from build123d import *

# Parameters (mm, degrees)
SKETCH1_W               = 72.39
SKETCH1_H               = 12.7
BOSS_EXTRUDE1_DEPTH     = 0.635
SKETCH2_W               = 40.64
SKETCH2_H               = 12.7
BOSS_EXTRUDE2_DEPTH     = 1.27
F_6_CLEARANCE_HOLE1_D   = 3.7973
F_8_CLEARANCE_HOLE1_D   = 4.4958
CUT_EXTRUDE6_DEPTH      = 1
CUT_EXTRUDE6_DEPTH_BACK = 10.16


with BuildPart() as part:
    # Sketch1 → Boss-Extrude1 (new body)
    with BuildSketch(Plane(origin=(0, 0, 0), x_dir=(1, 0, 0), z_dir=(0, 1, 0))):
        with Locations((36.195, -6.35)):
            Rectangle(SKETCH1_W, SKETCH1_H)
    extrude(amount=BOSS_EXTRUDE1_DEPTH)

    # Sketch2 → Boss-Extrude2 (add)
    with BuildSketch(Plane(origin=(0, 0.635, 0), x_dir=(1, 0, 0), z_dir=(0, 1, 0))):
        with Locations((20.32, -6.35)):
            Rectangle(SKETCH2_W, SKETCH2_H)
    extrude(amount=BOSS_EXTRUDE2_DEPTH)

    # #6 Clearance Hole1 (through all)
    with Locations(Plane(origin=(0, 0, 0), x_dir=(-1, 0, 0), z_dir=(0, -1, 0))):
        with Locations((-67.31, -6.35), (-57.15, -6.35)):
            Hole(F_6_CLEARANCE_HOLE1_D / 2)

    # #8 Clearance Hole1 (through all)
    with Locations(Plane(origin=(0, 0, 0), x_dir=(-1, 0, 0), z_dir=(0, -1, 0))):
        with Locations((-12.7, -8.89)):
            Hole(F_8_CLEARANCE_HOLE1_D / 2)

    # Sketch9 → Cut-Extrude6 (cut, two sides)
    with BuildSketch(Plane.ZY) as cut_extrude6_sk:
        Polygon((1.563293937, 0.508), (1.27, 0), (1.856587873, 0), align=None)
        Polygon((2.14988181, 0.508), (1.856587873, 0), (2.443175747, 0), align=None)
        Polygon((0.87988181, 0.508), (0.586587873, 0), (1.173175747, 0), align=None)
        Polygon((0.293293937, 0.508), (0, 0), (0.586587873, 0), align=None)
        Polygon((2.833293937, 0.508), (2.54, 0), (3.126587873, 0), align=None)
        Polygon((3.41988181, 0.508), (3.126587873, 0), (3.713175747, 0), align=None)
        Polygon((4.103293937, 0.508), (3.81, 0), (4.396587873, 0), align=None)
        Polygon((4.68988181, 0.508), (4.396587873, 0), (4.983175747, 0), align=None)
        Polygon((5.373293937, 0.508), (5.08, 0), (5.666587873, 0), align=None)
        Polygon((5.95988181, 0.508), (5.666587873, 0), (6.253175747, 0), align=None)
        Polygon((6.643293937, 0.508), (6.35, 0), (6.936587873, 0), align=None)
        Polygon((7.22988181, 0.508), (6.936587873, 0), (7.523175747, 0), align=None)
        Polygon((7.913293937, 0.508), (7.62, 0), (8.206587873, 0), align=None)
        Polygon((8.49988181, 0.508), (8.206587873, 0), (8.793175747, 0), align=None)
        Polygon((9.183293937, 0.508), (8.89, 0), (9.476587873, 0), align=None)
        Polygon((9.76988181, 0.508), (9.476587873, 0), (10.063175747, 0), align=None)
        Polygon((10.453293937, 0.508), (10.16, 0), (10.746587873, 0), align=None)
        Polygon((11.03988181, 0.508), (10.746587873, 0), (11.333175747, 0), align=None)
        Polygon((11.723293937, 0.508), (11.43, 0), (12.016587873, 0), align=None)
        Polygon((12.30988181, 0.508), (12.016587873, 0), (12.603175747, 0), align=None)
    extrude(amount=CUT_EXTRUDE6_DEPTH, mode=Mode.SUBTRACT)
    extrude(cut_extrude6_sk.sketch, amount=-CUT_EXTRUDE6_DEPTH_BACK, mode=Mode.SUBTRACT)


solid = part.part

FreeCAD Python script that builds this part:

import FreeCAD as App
import Part
import Sketcher
from FreeCAD import Vector
Q = App.Units.Quantity


def add_polygon(sketch, points):
    """Adds a closed chain of lines whose ends are joined by coincident constraints."""
    first, n = sketch.GeometryCount, len(points)
    for a, b in zip(points, points[1:] + points[:1]):
        sketch.addGeometry(Part.LineSegment(App.Vector(*a, 0), App.Vector(*b, 0)), False)
    for i in range(n):
        sketch.addConstraint(Sketcher.Constraint("Coincident", first + i, 2, first + (i + 1) % n, 1))

doc = App.newDocument("Part")
body = doc.addObject("PartDesign::Body", "Body")

# Sketch on XZ plane
sketch1 = body.newObject("Sketcher::SketchObject", "Sketch")
sketch1.AttachmentSupport = (doc.getObject("XZ_Plane"), [""])
sketch1.MapMode = "FlatFace"
add_polygon(sketch1, [(0, 0), (0, 12.7), (72.39, 12.7), (72.39, 0)])  # lines 0-3
sketch1.addConstraint(Sketcher.Constraint("Vertical", 0))
sketch1.addConstraint(Sketcher.Constraint("Horizontal", 1))
sketch1.addConstraint(Sketcher.Constraint("Vertical", 2))
sketch1.addConstraint(Sketcher.Constraint("Horizontal", 3))
sketch1.addConstraint(Sketcher.Constraint("Coincident", 3, 2, -1, 1))
sketch1.addConstraint(Sketcher.Constraint("DistanceY", 0, 1, 0, 2, Q("0.5 in")))
sketch1.addConstraint(Sketcher.Constraint("DistanceX", 1, 1, 1, 2, Q("2.85 in")))
pad1 = body.newObject("PartDesign::Pad", "Pad")
pad1.Profile = sketch1
pad1.Length = Q("0.025 in")
pad1.Reversed = True

# Sketch on XZ plane
sketch2 = body.newObject("Sketcher::SketchObject", "Sketch001")
sketch2.AttachmentSupport = (doc.getObject("XZ_Plane"), [""])
sketch2.MapMode = "FlatFace"
sketch2.AttachmentOffset = App.Placement(Vector(0, 0, -0.025 * 25.4), App.Rotation())
add_polygon(sketch2, [(0, 0), (0, 12.7), (40.64, 12.7), (40.64, 0)])  # lines 0-3
sketch2.addConstraint(Sketcher.Constraint("Vertical", 0))
sketch2.addConstraint(Sketcher.Constraint("Horizontal", 1))
sketch2.addConstraint(Sketcher.Constraint("Vertical", 2))
sketch2.addConstraint(Sketcher.Constraint("Horizontal", 3))
sketch2.addConstraint(Sketcher.Constraint("Coincident", 3, 2, -1, 1))
sketch2.addConstraint(Sketcher.Constraint("DistanceX", 1, 1, 1, 2, Q("1.6 in")))
sketch2.addConstraint(Sketcher.Constraint("DistanceY", 0, 1, 0, 2, Q("0.5 in")))
pad2 = body.newObject("PartDesign::Pad", "Pad001")
pad2.Profile = sketch2
pad2.Length = Q("0.05 in")
pad2.Reversed = True

# Sketch on XZ plane
sketch3 = body.newObject("Sketcher::SketchObject", "Sketch002")
sketch3.AttachmentSupport = (doc.getObject("XZ_Plane"), [""])
sketch3.MapMode = "FlatFace"
sketch3.addGeometry(Part.Circle(Vector(67.31, 6.35, 0), Vector(0, 0, 1), 1.89865), False)
sketch3.addGeometry(Part.Circle(Vector(57.15, 6.35, 0), Vector(0, 0, 1), 1.89865), False)
sketch3.addConstraint(Sketcher.Constraint("Equal", 0, 1))
sketch3.addConstraint(Sketcher.Constraint("Horizontal", 0, 3, 1, 3))
sketch3.addConstraint(Sketcher.Constraint("Diameter", 0, Q("0.1495 in")))
sketch3.addConstraint(Sketcher.Constraint("DistanceX", 1, 3, 0, 3, Q("0.4 in")))
sketch3.addConstraint(Sketcher.Constraint("DistanceX", -1, 1, 0, 3, Q("2.65 in")))
sketch3.addConstraint(Sketcher.Constraint("DistanceY", -1, 1, 0, 3, Q("0.25 in")))
doc.recompute()
hole = body.newObject("PartDesign::Hole", "Hole")
hole.Profile = sketch3
hole.ThreadType = "None"
hole.Diameter = Q("0.1495 in")
hole.DepthType = "ThroughAll"

# Sketch on XZ plane
sketch4 = body.newObject("Sketcher::SketchObject", "Sketch003")
sketch4.AttachmentSupport = (doc.getObject("XZ_Plane"), [""])
sketch4.MapMode = "FlatFace"
sketch4.addGeometry(Part.Circle(Vector(12.7, 8.89, 0), Vector(0, 0, 1), 2.2479), False)
sketch4.addConstraint(Sketcher.Constraint("Diameter", 0, Q("0.177 in")))
sketch4.addConstraint(Sketcher.Constraint("DistanceX", -1, 1, 0, 3, Q("0.5 in")))
sketch4.addConstraint(Sketcher.Constraint("DistanceY", -1, 1, 0, 3, Q("0.35 in")))
doc.recompute()
hole2 = body.newObject("PartDesign::Hole", "Hole001")
hole2.Profile = sketch4
hole2.ThreadType = "None"
hole2.Diameter = Q("0.177 in")
hole2.DepthType = "ThroughAll"

# Sketch on YZ plane
sketch5 = body.newObject("Sketcher::SketchObject", "Sketch004")
sketch5.AttachmentSupport = (doc.getObject("YZ_Plane"), [""])
sketch5.MapMode = "FlatFace"
add_polygon(sketch5, [(0.508, 1.563294), (0, 1.27), (0, 1.856588)])  # lines 0-2
add_polygon(sketch5, [(0.508, 2.149882), (0, 1.856588), (0, 2.443176)])  # lines 3-5
add_polygon(sketch5, [(0.508, 0.879882), (0, 0.586588), (0, 1.173176)])  # lines 6-8
add_polygon(sketch5, [(0.508, 0.293294), (0, 0), (0, 0.586588)])  # lines 9-11
add_polygon(sketch5, [(0.508, 2.833294), (0, 2.54), (0, 3.126588)])  # lines 12-14
add_polygon(sketch5, [(0.508, 3.419882), (0, 3.126588), (0, 3.713176)])  # lines 15-17
add_polygon(sketch5, [(0.508, 4.103294), (0, 3.81), (0, 4.396588)])  # lines 18-20
add_polygon(sketch5, [(0.508, 4.689882), (0, 4.396588), (0, 4.983176)])  # lines 21-23
add_polygon(sketch5, [(0.508, 5.373294), (0, 5.08), (0, 5.666588)])  # lines 24-26
add_polygon(sketch5, [(0.508, 5.959882), (0, 5.666588), (0, 6.253176)])  # lines 27-29
add_polygon(sketch5, [(0.508, 6.643294), (0, 6.35), (0, 6.936588)])  # lines 30-32
add_polygon(sketch5, [(0.508, 7.229882), (0, 6.936588), (0, 7.523176)])  # lines 33-35
add_polygon(sketch5, [(0.508, 7.913294), (0, 7.62), (0, 8.206588)])  # lines 36-38
add_polygon(sketch5, [(0.508, 8.499882), (0, 8.206588), (0, 8.793176)])  # lines 39-41
add_polygon(sketch5, [(0.508, 9.183294), (0, 8.89), (0, 9.476588)])  # lines 42-44
add_polygon(sketch5, [(0.508, 9.769882), (0, 9.476588), (0, 10.063176)])  # lines 45-47
add_polygon(sketch5, [(0.508, 10.453294), (0, 10.16), (0, 10.746588)])  # lines 48-50
add_polygon(sketch5, [(0.508, 11.039882), (0, 10.746588), (0, 11.333176)])  # lines 51-53
add_polygon(sketch5, [(0.508, 11.723294), (0, 11.43), (0, 12.016588)])  # lines 54-56
add_polygon(sketch5, [(0.508, 12.309882), (0, 12.016588), (0, 12.603176)])  # lines 57-59
sketch5.addConstraint(Sketcher.Constraint("Vertical", 1))
sketch5.addConstraint(Sketcher.Constraint("Vertical", 4))
sketch5.addConstraint(Sketcher.Constraint("Vertical", 7))
sketch5.addConstraint(Sketcher.Constraint("Vertical", 10))
sketch5.addConstraint(Sketcher.Constraint("Vertical", 13))
sketch5.addConstraint(Sketcher.Constraint("Vertical", 16))
sketch5.addConstraint(Sketcher.Constraint("Vertical", 19))
sketch5.addConstraint(Sketcher.Constraint("Vertical", 22))
sketch5.addConstraint(Sketcher.Constraint("Vertical", 25))
sketch5.addConstraint(Sketcher.Constraint("Vertical", 28))
sketch5.addConstraint(Sketcher.Constraint("Vertical", 31))
sketch5.addConstraint(Sketcher.Constraint("Vertical", 34))
sketch5.addConstraint(Sketcher.Constraint("Vertical", 37))
sketch5.addConstraint(Sketcher.Constraint("Vertical", 40))
sketch5.addConstraint(Sketcher.Constraint("Vertical", 43))
sketch5.addConstraint(Sketcher.Constraint("Vertical", 46))
sketch5.addConstraint(Sketcher.Constraint("Vertical", 49))
sketch5.addConstraint(Sketcher.Constraint("Vertical", 52))
sketch5.addConstraint(Sketcher.Constraint("Vertical", 55))
sketch5.addConstraint(Sketcher.Constraint("Vertical", 58))
sketch5.addConstraint(Sketcher.Constraint("Coincident", 9, 2, -1, 1))
sketch5.addConstraint(Sketcher.Constraint("Coincident", 3, 2, 1, 2))
sketch5.addConstraint(Sketcher.Constraint("Coincident", 10, 2, 6, 2))
sketch5.addConstraint(Sketcher.Constraint("Coincident", 15, 2, 13, 2))
sketch5.addConstraint(Sketcher.Constraint("Coincident", 21, 2, 19, 2))
sketch5.addConstraint(Sketcher.Constraint("Coincident", 27, 2, 25, 2))
sketch5.addConstraint(Sketcher.Constraint("Coincident", 33, 2, 31, 2))
sketch5.addConstraint(Sketcher.Constraint("Coincident", 39, 2, 37, 2))
sketch5.addConstraint(Sketcher.Constraint("Coincident", 45, 2, 43, 2))
sketch5.addConstraint(Sketcher.Constraint("Coincident", 51, 2, 49, 2))
sketch5.addConstraint(Sketcher.Constraint("Coincident", 57, 2, 55, 2))
sketch5.addConstraint(Sketcher.Constraint("PointOnObject", 0, 2, -2))
sketch5.addConstraint(Sketcher.Constraint("PointOnObject", 12, 2, -2))
sketch5.addConstraint(Sketcher.Constraint("PointOnObject", 18, 2, -2))
sketch5.addConstraint(Sketcher.Constraint("PointOnObject", 24, 2, -2))
sketch5.addConstraint(Sketcher.Constraint("PointOnObject", 30, 2, -2))
sketch5.addConstraint(Sketcher.Constraint("PointOnObject", 36, 2, -2))
sketch5.addConstraint(Sketcher.Constraint("PointOnObject", 42, 2, -2))
sketch5.addConstraint(Sketcher.Constraint("PointOnObject", 48, 2, -2))
sketch5.addConstraint(Sketcher.Constraint("PointOnObject", 54, 2, -2))
sketch5.addConstraint(Sketcher.Constraint("Parallel", 0, 3))
sketch5.addConstraint(Sketcher.Constraint("Parallel", 2, 5))
sketch5.addConstraint(Sketcher.Constraint("Parallel", 3, 6))
sketch5.addConstraint(Sketcher.Constraint("Parallel", 5, 8))
sketch5.addConstraint(Sketcher.Constraint("Parallel", 6, 9))
sketch5.addConstraint(Sketcher.Constraint("Parallel", 8, 11))
sketch5.addConstraint(Sketcher.Constraint("Parallel", 9, 12))
sketch5.addConstraint(Sketcher.Constraint("Parallel", 11, 14))
sketch5.addConstraint(Sketcher.Constraint("Parallel", 12, 15))
sketch5.addConstraint(Sketcher.Constraint("Parallel", 14, 17))
sketch5.addConstraint(Sketcher.Constraint("Parallel", 15, 18))
sketch5.addConstraint(Sketcher.Constraint("Parallel", 17, 20))
sketch5.addConstraint(Sketcher.Constraint("Parallel", 18, 21))
sketch5.addConstraint(Sketcher.Constraint("Parallel", 20, 23))
sketch5.addConstraint(Sketcher.Constraint("Parallel", 21, 24))
sketch5.addConstraint(Sketcher.Constraint("Parallel", 23, 26))
sketch5.addConstraint(Sketcher.Constraint("Parallel", 24, 27))
sketch5.addConstraint(Sketcher.Constraint("Parallel", 26, 29))
sketch5.addConstraint(Sketcher.Constraint("Parallel", 27, 30))
sketch5.addConstraint(Sketcher.Constraint("Parallel", 29, 32))
sketch5.addConstraint(Sketcher.Constraint("Parallel", 30, 33))
sketch5.addConstraint(Sketcher.Constraint("Parallel", 32, 35))
sketch5.addConstraint(Sketcher.Constraint("Parallel", 33, 36))
sketch5.addConstraint(Sketcher.Constraint("Parallel", 35, 38))
sketch5.addConstraint(Sketcher.Constraint("Parallel", 36, 39))
sketch5.addConstraint(Sketcher.Constraint("Parallel", 38, 41))
sketch5.addConstraint(Sketcher.Constraint("Parallel", 39, 42))
sketch5.addConstraint(Sketcher.Constraint("Parallel", 41, 44))
sketch5.addConstraint(Sketcher.Constraint("Parallel", 42, 45))
sketch5.addConstraint(Sketcher.Constraint("Parallel", 44, 47))
sketch5.addConstraint(Sketcher.Constraint("Parallel", 45, 48))
sketch5.addConstraint(Sketcher.Constraint("Parallel", 47, 50))
sketch5.addConstraint(Sketcher.Constraint("Parallel", 48, 51))
sketch5.addConstraint(Sketcher.Constraint("Parallel", 50, 53))
sketch5.addConstraint(Sketcher.Constraint("Parallel", 51, 54))
sketch5.addConstraint(Sketcher.Constraint("Parallel", 53, 56))
sketch5.addConstraint(Sketcher.Constraint("Parallel", 54, 57))
sketch5.addConstraint(Sketcher.Constraint("Parallel", 56, 59))
sketch5.addConstraint(Sketcher.Constraint("Vertical", 2, 2, 5, 2))
sketch5.addConstraint(Sketcher.Constraint("Vertical", 5, 2, 8, 2))
sketch5.addConstraint(Sketcher.Constraint("Vertical", 8, 2, 11, 2))
sketch5.addConstraint(Sketcher.Constraint("Vertical", 11, 2, 14, 2))
sketch5.addConstraint(Sketcher.Constraint("Vertical", 14, 2, 17, 2))
sketch5.addConstraint(Sketcher.Constraint("Vertical", 17, 2, 20, 2))
sketch5.addConstraint(Sketcher.Constraint("Vertical", 20, 2, 23, 2))
sketch5.addConstraint(Sketcher.Constraint("Vertical", 23, 2, 26, 2))
sketch5.addConstraint(Sketcher.Constraint("Vertical", 26, 2, 29, 2))
sketch5.addConstraint(Sketcher.Constraint("Vertical", 29, 2, 32, 2))
sketch5.addConstraint(Sketcher.Constraint("Vertical", 32, 2, 35, 2))
sketch5.addConstraint(Sketcher.Constraint("Vertical", 35, 2, 38, 2))
sketch5.addConstraint(Sketcher.Constraint("Vertical", 38, 2, 41, 2))
sketch5.addConstraint(Sketcher.Constraint("Vertical", 41, 2, 44, 2))
sketch5.addConstraint(Sketcher.Constraint("Vertical", 44, 2, 47, 2))
sketch5.addConstraint(Sketcher.Constraint("Vertical", 47, 2, 50, 2))
sketch5.addConstraint(Sketcher.Constraint("Vertical", 50, 2, 53, 2))
sketch5.addConstraint(Sketcher.Constraint("Vertical", 53, 2, 56, 2))
sketch5.addConstraint(Sketcher.Constraint("Vertical", 56, 2, 59, 2))
sketch5.addConstraint(Sketcher.Constraint("Equal", 0, 2))
sketch5.addConstraint(Sketcher.Constraint("Angle", 0, Q("-150 deg")))
sketch5.addConstraint(Sketcher.Constraint("DistanceY", -1, 1, 12, 2, Q("0.1 in")))
sketch5.addConstraint(Sketcher.Constraint("DistanceY", -1, 1, 24, 2, Q("0.2 in")))
sketch5.addConstraint(Sketcher.Constraint("DistanceY", -1, 1, 36, 2, Q("0.3 in")))
sketch5.addConstraint(Sketcher.Constraint("DistanceY", -1, 1, 48, 2, Q("0.4 in")))
sketch5.addConstraint(Sketcher.Constraint("DistanceY", -1, 1, 0, 2, Q("0.05 in")))
sketch5.addConstraint(Sketcher.Constraint("DistanceX", -1, 1, 2, 2, Q("0.02 in")))
sketch5.addConstraint(Sketcher.Constraint("DistanceY", -1, 1, 18, 2, Q("0.15 in")))
sketch5.addConstraint(Sketcher.Constraint("DistanceY", -1, 1, 30, 2, Q("0.25 in")))
sketch5.addConstraint(Sketcher.Constraint("DistanceY", -1, 1, 42, 2, Q("0.35 in")))
sketch5.addConstraint(Sketcher.Constraint("DistanceY", -1, 1, 54, 2, Q("0.45 in")))
pocket1 = body.newObject("PartDesign::Pocket", "Pocket")
pocket1.Profile = sketch5
pocket1.Type = "TwoLengths"
pocket1.Length = 1
pocket1.Length2 = Q("0.4 in")

doc.recompute()
